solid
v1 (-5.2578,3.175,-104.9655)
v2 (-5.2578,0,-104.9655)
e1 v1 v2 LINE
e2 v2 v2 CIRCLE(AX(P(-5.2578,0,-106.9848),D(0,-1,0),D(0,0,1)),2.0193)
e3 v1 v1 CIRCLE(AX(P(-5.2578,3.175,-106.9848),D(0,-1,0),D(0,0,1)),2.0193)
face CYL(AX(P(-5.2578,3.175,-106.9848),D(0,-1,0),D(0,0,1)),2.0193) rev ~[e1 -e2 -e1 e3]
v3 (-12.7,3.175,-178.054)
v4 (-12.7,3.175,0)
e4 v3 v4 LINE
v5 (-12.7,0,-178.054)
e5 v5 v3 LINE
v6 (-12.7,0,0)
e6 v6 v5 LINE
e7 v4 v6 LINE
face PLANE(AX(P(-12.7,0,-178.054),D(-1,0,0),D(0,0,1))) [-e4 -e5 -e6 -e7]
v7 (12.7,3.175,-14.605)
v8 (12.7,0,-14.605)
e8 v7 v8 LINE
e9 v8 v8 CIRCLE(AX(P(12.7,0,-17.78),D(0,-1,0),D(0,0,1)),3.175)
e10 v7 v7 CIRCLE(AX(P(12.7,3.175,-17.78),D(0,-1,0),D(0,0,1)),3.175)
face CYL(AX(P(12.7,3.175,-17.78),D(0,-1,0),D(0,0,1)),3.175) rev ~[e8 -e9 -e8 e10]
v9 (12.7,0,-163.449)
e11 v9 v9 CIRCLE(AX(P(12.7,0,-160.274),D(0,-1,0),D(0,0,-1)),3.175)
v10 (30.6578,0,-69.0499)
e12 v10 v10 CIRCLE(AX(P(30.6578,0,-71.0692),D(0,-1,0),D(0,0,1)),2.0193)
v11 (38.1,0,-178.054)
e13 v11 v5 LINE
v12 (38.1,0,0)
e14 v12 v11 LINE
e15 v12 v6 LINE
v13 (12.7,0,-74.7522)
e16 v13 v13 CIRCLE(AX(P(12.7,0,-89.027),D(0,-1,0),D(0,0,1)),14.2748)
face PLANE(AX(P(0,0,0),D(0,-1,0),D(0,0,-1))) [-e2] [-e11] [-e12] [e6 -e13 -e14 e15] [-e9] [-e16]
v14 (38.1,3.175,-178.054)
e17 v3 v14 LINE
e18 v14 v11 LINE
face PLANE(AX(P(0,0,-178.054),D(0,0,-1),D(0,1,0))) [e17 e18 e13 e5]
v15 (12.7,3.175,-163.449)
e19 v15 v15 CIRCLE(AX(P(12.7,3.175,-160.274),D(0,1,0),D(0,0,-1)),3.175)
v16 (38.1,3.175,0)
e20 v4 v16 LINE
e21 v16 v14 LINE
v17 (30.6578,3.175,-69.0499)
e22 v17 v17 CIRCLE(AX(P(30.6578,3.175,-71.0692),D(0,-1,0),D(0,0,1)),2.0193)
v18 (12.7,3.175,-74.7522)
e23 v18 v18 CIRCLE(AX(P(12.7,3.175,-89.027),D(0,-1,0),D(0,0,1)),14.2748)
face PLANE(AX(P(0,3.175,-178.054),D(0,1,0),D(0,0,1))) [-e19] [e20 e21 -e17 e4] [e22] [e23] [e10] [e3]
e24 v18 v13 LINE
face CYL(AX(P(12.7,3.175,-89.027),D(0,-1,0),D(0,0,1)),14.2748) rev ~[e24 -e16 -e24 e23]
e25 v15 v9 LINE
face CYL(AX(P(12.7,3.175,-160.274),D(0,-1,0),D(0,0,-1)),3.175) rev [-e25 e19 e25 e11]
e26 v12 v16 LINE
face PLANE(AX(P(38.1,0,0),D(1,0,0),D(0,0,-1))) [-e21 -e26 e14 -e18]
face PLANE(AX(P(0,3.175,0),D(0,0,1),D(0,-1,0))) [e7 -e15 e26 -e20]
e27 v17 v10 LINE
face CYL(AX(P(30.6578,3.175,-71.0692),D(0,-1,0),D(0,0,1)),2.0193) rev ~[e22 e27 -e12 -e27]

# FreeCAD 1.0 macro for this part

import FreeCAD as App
import Part
import Sketcher
Q = App.Units.Quantity


def add_polygon(sketch, points):
    """Adds a closed chain of lines whose ends are joined by coincident constraints."""
    first, n = sketch.GeometryCount, len(points)
    for a, b in zip(points, points[1:] + points[:1]):
        sketch.addGeometry(Part.LineSegment(App.Vector(*a, 0), App.Vector(*b, 0)), False)
    for i in range(n):
        sketch.addConstraint(Sketcher.Constraint("Coincident", first + i, 2, first + (i + 1) % n, 1))

doc = App.newDocument("Part")
body = doc.addObject("PartDesign::Body", "Body")

# Sketch on XZ plane
sketch1 = doc.addObject("Sketcher::SketchObject", "Sketch")
body.addObject(sketch1)
sketch1.AttachmentSupport = (doc.XZ_Plane, [""])
sketch1.MapMode = "FlatFace"
add_polygon(sketch1, [(0, -178), (0, 0), (25, 0), (25, -178)])  # lines 0-3
sketch1.addConstraint(Sketcher.Constraint("Vertical", 0))
sketch1.addConstraint(Sketcher.Constraint("Horizontal", 1))
sketch1.addConstraint(Sketcher.Constraint("Vertical", 2))
sketch1.addConstraint(Sketcher.Constraint("Horizontal", 3))
sketch1.addConstraint(Sketcher.Constraint("Coincident", 0, 2, -1, 1))
sketch1.addConstraint(Sketcher.Constraint("DistanceX", 1, 1, 1, 2, Q("1 in")))
sketch1.addConstraint(Sketcher.Constraint("DistanceY", 0, 1, 0, 2, Q("7.01 in")))
pad1 = doc.addObject("PartDesign::Pad", "Pad")
body.addObject(pad1)
pad1.Profile = sketch1
pad1.Length = Q("0.125 in")
pad1.Reversed = True

# Sketch on XZ plane
sketch2 = doc.addObject("Sketcher::SketchObject", "Sketch001")
body.addObject(sketch2)
sketch2.AttachmentSupport = (doc.XZ_Plane, [""])
sketch2.MapMode = "FlatFace"
sketch2.AttachmentOffset = App.Placement(App.Vector(0, 0, -0.125 * 25.4), App.Rotation())
sketch2.addGeometry(Part.Circle(App.Vector(12.7, -17.8, 0), App.Vector(0, 0, 1), 3.2), False)
sketch2.addConstraint(Sketcher.Constraint("Diameter", 0, Q("0.25 in")))
sketch2.addConstraint(Sketcher.Constraint("DistanceX", -1, 1, 0, 3, Q("0.5 in")))
sketch2.addConstraint(Sketcher.Constraint("DistanceY", 0, 3, -1, 1, Q("0.7 in")))
doc.recompute()
hole = doc.addObject("PartDesign::Hole", "Hole")
body.addObject(hole)
hole.Profile = sketch2
hole.ThreadType = "None"
hole.Diameter = Q("0.25 in")
hole.DepthType = "ThroughAll"
hole.Reversed = True
doc.recompute()

datumplane = doc.addObject("PartDesign::Plane", "DatumPlane")
body.addObject(datumplane)
datumplane.AttachmentSupport = (doc.XY_Plane, [""])
datumplane.MapMode = "FlatFace"
datumplane.AttachmentOffset = App.Placement(App.Vector(0, 0, -3.505 * 25.4), App.Rotation())
mirrored = doc.addObject("PartDesign::Mirrored", "Mirrored")
body.addObject(mirrored)
mirrored.Originals = [hole]
mirrored.MirrorPlane = (datumplane, [""])
body.Tip = mirrored

# Sketch on YZ plane
sketch3 = doc.addObject("Sketcher::SketchObject", "Sketch002")
body.addObject(sketch3)
sketch3.AttachmentSupport = (doc.YZ_Plane, [""])
sketch3.MapMode = "FlatFace"
sketch3.AttachmentOffset = App.Placement(App.Vector(0, 0, 1 * 25.4), App.Rotation())
add_polygon(sketch3, [(3.2, -178.1), (3.2, 0), (0, 0), (0, -178.1)])  # lines 0-3
sketch3.addConstraint(Sketcher.Constraint("Vertical", 0))
sketch3.addConstraint(Sketcher.Constraint("Horizontal", 1))
sketch3.addConstraint(Sketcher.Constraint("Vertical", 2))
sketch3.addConstraint(Sketcher.Constraint("Horizontal", 3))
sketch3.addConstraint(Sketcher.Constraint("Coincident", 1, 2, -1, 1))
sketch3.addConstraint(Sketcher.Constraint("DistanceY", 0, 1, 0, 2, Q("7.01 in")))
sketch3.addConstraint(Sketcher.Constraint("DistanceX", 1, 2, 1, 1, Q("0.125 in")))
pad2 = doc.addObject("PartDesign::Pad", "Pad001")
body.addObject(pad2)
pad2.Profile = sketch3
pad2.Length = Q("0.5 in")

# Sketch on YZ plane
sketch4 = doc.addObject("Sketcher::SketchObject", "Sketch003")
body.addObject(sketch4)
sketch4.AttachmentSupport = (doc.YZ_Plane, [""])
sketch4.MapMode = "FlatFace"
add_polygon(sketch4, [(3.2, -178.1), (0, -178.1), (0, 0), (3.2, 0)])  # lines 0-3
sketch4.addConstraint(Sketcher.Constraint("Horizontal", 0))
sketch4.addConstraint(Sketcher.Constraint("Vertical", 1))
sketch4.addConstraint(Sketcher.Constraint("Horizontal", 2))
sketch4.addConstraint(Sketcher.Constraint("Vertical", 3))
sketch4.addConstraint(Sketcher.Constraint("Coincident", 1, 2, -1, 1))
sketch4.addConstraint(Sketcher.Constraint("DistanceY", 1, 1, 1, 2, Q("7.01 in")))
sketch4.addConstraint(Sketcher.Constraint("DistanceX", 0, 2, 0, 1, Q("0.125 in")))
pad3 = doc.addObject("PartDesign::Pad", "Pad002")
body.addObject(pad3)
pad3.Profile = sketch4
pad3.Length = Q("0.5 in")
pad3.Reversed = True

# Sketch on XZ plane
sketch5 = doc.addObject("Sketcher::SketchObject", "Sketch004")
body.addObject(sketch5)
sketch5.AttachmentSupport = (doc.XZ_Plane, [""])
sketch5.MapMode = "FlatFace"
sketch5.AttachmentOffset = App.Placement(App.Vector(0, 0, -0.125 * 25.4), App.Rotation())
sketch5.addGeometry(Part.Circle(App.Vector(13, -89, 0), App.Vector(0, 0, 1), 14), False)
sketch5.addConstraint(Sketcher.Constraint("Diameter", 0, Q("1.124 in")))
sketch5.addConstraint(Sketcher.Constraint("DistanceX", -1, 1, 0, 3, Q("0.5 in")))
sketch5.addConstraint(Sketcher.Constraint("DistanceY", 0, 3, -1, 1, Q("3.505 in")))
doc.recompute()
hole2 = doc.addObject("PartDesign::Hole", "Hole001")
body.addObject(hole2)
hole2.Profile = sketch5
hole2.ThreadType = "None"
hole2.Diameter = Q("1.124 in")
hole2.DepthType = "ThroughAll"
hole2.Reversed = True

# Sketch on XZ plane
sketch6 = doc.addObject("Sketcher::SketchObject", "Sketch005")
body.addObject(sketch6)
sketch6.AttachmentSupport = (doc.XZ_Plane, [""])
sketch6.MapMode = "FlatFace"
sketch6.AttachmentOffset = App.Placement(App.Vector(0, 0, -0.125 * 25.4), App.Rotation())
sketch6.addGeometry(Part.Circle(App.Vector(30.7, -71.1, 0), App.Vector(0, 0, 1), 2), False)
sketch6.addConstraint(Sketcher.Constraint("Diameter", 0, Q("0.159 in")))
sketch6.addConstraint(Sketcher.Constraint("DistanceX", -1, 1, 0, 3, Q("1.207 in")))
sketch6.addConstraint(Sketcher.Constraint("DistanceY", 0, 3, -1, 1, Q("2.798 in")))
doc.recompute()
hole3 = doc.addObject("PartDesign::Hole", "Hole002")
body.addObject(hole3)
hole3.Profile = sketch6
hole3.ThreadType = "None"
hole3.Diameter = Q("0.159 in")
hole3.DepthType = "ThroughAll"
hole3.Reversed = True

# Sketch on XZ plane
sketch7 = doc.addObject("Sketcher::SketchObject", "Sketch006")
body.addObject(sketch7)
sketch7.AttachmentSupport = (doc.XZ_Plane, [""])
sketch7.MapMode = "FlatFace"
sketch7.AttachmentOffset = App.Placement(App.Vector(0, 0, -0.125 * 25.4), App.Rotation())
sketch7.addGeometry(Part.Circle(App.Vector(-5.3, -107, 0), App.Vector(0, 0, 1), 2), False)
sketch7.addConstraint(Sketcher.Constraint("Diameter", 0, Q("0.159 in")))
sketch7.addConstraint(Sketcher.Constraint("DistanceX", 0, 3, -1, 1, Q("0.207 in")))
sketch7.addConstraint(Sketcher.Constraint("DistanceY", 0, 3, -1, 1, Q("4.212 in")))
doc.recompute()
hole4 = doc.addObject("PartDesign::Hole", "Hole003")
body.addObject(hole4)
hole4.Profile = sketch7
hole4.ThreadType = "None"
hole4.Diameter = Q("0.159 in")
hole4.DepthType = "ThroughAll"
hole4.Reversed = True

doc.recompute()
